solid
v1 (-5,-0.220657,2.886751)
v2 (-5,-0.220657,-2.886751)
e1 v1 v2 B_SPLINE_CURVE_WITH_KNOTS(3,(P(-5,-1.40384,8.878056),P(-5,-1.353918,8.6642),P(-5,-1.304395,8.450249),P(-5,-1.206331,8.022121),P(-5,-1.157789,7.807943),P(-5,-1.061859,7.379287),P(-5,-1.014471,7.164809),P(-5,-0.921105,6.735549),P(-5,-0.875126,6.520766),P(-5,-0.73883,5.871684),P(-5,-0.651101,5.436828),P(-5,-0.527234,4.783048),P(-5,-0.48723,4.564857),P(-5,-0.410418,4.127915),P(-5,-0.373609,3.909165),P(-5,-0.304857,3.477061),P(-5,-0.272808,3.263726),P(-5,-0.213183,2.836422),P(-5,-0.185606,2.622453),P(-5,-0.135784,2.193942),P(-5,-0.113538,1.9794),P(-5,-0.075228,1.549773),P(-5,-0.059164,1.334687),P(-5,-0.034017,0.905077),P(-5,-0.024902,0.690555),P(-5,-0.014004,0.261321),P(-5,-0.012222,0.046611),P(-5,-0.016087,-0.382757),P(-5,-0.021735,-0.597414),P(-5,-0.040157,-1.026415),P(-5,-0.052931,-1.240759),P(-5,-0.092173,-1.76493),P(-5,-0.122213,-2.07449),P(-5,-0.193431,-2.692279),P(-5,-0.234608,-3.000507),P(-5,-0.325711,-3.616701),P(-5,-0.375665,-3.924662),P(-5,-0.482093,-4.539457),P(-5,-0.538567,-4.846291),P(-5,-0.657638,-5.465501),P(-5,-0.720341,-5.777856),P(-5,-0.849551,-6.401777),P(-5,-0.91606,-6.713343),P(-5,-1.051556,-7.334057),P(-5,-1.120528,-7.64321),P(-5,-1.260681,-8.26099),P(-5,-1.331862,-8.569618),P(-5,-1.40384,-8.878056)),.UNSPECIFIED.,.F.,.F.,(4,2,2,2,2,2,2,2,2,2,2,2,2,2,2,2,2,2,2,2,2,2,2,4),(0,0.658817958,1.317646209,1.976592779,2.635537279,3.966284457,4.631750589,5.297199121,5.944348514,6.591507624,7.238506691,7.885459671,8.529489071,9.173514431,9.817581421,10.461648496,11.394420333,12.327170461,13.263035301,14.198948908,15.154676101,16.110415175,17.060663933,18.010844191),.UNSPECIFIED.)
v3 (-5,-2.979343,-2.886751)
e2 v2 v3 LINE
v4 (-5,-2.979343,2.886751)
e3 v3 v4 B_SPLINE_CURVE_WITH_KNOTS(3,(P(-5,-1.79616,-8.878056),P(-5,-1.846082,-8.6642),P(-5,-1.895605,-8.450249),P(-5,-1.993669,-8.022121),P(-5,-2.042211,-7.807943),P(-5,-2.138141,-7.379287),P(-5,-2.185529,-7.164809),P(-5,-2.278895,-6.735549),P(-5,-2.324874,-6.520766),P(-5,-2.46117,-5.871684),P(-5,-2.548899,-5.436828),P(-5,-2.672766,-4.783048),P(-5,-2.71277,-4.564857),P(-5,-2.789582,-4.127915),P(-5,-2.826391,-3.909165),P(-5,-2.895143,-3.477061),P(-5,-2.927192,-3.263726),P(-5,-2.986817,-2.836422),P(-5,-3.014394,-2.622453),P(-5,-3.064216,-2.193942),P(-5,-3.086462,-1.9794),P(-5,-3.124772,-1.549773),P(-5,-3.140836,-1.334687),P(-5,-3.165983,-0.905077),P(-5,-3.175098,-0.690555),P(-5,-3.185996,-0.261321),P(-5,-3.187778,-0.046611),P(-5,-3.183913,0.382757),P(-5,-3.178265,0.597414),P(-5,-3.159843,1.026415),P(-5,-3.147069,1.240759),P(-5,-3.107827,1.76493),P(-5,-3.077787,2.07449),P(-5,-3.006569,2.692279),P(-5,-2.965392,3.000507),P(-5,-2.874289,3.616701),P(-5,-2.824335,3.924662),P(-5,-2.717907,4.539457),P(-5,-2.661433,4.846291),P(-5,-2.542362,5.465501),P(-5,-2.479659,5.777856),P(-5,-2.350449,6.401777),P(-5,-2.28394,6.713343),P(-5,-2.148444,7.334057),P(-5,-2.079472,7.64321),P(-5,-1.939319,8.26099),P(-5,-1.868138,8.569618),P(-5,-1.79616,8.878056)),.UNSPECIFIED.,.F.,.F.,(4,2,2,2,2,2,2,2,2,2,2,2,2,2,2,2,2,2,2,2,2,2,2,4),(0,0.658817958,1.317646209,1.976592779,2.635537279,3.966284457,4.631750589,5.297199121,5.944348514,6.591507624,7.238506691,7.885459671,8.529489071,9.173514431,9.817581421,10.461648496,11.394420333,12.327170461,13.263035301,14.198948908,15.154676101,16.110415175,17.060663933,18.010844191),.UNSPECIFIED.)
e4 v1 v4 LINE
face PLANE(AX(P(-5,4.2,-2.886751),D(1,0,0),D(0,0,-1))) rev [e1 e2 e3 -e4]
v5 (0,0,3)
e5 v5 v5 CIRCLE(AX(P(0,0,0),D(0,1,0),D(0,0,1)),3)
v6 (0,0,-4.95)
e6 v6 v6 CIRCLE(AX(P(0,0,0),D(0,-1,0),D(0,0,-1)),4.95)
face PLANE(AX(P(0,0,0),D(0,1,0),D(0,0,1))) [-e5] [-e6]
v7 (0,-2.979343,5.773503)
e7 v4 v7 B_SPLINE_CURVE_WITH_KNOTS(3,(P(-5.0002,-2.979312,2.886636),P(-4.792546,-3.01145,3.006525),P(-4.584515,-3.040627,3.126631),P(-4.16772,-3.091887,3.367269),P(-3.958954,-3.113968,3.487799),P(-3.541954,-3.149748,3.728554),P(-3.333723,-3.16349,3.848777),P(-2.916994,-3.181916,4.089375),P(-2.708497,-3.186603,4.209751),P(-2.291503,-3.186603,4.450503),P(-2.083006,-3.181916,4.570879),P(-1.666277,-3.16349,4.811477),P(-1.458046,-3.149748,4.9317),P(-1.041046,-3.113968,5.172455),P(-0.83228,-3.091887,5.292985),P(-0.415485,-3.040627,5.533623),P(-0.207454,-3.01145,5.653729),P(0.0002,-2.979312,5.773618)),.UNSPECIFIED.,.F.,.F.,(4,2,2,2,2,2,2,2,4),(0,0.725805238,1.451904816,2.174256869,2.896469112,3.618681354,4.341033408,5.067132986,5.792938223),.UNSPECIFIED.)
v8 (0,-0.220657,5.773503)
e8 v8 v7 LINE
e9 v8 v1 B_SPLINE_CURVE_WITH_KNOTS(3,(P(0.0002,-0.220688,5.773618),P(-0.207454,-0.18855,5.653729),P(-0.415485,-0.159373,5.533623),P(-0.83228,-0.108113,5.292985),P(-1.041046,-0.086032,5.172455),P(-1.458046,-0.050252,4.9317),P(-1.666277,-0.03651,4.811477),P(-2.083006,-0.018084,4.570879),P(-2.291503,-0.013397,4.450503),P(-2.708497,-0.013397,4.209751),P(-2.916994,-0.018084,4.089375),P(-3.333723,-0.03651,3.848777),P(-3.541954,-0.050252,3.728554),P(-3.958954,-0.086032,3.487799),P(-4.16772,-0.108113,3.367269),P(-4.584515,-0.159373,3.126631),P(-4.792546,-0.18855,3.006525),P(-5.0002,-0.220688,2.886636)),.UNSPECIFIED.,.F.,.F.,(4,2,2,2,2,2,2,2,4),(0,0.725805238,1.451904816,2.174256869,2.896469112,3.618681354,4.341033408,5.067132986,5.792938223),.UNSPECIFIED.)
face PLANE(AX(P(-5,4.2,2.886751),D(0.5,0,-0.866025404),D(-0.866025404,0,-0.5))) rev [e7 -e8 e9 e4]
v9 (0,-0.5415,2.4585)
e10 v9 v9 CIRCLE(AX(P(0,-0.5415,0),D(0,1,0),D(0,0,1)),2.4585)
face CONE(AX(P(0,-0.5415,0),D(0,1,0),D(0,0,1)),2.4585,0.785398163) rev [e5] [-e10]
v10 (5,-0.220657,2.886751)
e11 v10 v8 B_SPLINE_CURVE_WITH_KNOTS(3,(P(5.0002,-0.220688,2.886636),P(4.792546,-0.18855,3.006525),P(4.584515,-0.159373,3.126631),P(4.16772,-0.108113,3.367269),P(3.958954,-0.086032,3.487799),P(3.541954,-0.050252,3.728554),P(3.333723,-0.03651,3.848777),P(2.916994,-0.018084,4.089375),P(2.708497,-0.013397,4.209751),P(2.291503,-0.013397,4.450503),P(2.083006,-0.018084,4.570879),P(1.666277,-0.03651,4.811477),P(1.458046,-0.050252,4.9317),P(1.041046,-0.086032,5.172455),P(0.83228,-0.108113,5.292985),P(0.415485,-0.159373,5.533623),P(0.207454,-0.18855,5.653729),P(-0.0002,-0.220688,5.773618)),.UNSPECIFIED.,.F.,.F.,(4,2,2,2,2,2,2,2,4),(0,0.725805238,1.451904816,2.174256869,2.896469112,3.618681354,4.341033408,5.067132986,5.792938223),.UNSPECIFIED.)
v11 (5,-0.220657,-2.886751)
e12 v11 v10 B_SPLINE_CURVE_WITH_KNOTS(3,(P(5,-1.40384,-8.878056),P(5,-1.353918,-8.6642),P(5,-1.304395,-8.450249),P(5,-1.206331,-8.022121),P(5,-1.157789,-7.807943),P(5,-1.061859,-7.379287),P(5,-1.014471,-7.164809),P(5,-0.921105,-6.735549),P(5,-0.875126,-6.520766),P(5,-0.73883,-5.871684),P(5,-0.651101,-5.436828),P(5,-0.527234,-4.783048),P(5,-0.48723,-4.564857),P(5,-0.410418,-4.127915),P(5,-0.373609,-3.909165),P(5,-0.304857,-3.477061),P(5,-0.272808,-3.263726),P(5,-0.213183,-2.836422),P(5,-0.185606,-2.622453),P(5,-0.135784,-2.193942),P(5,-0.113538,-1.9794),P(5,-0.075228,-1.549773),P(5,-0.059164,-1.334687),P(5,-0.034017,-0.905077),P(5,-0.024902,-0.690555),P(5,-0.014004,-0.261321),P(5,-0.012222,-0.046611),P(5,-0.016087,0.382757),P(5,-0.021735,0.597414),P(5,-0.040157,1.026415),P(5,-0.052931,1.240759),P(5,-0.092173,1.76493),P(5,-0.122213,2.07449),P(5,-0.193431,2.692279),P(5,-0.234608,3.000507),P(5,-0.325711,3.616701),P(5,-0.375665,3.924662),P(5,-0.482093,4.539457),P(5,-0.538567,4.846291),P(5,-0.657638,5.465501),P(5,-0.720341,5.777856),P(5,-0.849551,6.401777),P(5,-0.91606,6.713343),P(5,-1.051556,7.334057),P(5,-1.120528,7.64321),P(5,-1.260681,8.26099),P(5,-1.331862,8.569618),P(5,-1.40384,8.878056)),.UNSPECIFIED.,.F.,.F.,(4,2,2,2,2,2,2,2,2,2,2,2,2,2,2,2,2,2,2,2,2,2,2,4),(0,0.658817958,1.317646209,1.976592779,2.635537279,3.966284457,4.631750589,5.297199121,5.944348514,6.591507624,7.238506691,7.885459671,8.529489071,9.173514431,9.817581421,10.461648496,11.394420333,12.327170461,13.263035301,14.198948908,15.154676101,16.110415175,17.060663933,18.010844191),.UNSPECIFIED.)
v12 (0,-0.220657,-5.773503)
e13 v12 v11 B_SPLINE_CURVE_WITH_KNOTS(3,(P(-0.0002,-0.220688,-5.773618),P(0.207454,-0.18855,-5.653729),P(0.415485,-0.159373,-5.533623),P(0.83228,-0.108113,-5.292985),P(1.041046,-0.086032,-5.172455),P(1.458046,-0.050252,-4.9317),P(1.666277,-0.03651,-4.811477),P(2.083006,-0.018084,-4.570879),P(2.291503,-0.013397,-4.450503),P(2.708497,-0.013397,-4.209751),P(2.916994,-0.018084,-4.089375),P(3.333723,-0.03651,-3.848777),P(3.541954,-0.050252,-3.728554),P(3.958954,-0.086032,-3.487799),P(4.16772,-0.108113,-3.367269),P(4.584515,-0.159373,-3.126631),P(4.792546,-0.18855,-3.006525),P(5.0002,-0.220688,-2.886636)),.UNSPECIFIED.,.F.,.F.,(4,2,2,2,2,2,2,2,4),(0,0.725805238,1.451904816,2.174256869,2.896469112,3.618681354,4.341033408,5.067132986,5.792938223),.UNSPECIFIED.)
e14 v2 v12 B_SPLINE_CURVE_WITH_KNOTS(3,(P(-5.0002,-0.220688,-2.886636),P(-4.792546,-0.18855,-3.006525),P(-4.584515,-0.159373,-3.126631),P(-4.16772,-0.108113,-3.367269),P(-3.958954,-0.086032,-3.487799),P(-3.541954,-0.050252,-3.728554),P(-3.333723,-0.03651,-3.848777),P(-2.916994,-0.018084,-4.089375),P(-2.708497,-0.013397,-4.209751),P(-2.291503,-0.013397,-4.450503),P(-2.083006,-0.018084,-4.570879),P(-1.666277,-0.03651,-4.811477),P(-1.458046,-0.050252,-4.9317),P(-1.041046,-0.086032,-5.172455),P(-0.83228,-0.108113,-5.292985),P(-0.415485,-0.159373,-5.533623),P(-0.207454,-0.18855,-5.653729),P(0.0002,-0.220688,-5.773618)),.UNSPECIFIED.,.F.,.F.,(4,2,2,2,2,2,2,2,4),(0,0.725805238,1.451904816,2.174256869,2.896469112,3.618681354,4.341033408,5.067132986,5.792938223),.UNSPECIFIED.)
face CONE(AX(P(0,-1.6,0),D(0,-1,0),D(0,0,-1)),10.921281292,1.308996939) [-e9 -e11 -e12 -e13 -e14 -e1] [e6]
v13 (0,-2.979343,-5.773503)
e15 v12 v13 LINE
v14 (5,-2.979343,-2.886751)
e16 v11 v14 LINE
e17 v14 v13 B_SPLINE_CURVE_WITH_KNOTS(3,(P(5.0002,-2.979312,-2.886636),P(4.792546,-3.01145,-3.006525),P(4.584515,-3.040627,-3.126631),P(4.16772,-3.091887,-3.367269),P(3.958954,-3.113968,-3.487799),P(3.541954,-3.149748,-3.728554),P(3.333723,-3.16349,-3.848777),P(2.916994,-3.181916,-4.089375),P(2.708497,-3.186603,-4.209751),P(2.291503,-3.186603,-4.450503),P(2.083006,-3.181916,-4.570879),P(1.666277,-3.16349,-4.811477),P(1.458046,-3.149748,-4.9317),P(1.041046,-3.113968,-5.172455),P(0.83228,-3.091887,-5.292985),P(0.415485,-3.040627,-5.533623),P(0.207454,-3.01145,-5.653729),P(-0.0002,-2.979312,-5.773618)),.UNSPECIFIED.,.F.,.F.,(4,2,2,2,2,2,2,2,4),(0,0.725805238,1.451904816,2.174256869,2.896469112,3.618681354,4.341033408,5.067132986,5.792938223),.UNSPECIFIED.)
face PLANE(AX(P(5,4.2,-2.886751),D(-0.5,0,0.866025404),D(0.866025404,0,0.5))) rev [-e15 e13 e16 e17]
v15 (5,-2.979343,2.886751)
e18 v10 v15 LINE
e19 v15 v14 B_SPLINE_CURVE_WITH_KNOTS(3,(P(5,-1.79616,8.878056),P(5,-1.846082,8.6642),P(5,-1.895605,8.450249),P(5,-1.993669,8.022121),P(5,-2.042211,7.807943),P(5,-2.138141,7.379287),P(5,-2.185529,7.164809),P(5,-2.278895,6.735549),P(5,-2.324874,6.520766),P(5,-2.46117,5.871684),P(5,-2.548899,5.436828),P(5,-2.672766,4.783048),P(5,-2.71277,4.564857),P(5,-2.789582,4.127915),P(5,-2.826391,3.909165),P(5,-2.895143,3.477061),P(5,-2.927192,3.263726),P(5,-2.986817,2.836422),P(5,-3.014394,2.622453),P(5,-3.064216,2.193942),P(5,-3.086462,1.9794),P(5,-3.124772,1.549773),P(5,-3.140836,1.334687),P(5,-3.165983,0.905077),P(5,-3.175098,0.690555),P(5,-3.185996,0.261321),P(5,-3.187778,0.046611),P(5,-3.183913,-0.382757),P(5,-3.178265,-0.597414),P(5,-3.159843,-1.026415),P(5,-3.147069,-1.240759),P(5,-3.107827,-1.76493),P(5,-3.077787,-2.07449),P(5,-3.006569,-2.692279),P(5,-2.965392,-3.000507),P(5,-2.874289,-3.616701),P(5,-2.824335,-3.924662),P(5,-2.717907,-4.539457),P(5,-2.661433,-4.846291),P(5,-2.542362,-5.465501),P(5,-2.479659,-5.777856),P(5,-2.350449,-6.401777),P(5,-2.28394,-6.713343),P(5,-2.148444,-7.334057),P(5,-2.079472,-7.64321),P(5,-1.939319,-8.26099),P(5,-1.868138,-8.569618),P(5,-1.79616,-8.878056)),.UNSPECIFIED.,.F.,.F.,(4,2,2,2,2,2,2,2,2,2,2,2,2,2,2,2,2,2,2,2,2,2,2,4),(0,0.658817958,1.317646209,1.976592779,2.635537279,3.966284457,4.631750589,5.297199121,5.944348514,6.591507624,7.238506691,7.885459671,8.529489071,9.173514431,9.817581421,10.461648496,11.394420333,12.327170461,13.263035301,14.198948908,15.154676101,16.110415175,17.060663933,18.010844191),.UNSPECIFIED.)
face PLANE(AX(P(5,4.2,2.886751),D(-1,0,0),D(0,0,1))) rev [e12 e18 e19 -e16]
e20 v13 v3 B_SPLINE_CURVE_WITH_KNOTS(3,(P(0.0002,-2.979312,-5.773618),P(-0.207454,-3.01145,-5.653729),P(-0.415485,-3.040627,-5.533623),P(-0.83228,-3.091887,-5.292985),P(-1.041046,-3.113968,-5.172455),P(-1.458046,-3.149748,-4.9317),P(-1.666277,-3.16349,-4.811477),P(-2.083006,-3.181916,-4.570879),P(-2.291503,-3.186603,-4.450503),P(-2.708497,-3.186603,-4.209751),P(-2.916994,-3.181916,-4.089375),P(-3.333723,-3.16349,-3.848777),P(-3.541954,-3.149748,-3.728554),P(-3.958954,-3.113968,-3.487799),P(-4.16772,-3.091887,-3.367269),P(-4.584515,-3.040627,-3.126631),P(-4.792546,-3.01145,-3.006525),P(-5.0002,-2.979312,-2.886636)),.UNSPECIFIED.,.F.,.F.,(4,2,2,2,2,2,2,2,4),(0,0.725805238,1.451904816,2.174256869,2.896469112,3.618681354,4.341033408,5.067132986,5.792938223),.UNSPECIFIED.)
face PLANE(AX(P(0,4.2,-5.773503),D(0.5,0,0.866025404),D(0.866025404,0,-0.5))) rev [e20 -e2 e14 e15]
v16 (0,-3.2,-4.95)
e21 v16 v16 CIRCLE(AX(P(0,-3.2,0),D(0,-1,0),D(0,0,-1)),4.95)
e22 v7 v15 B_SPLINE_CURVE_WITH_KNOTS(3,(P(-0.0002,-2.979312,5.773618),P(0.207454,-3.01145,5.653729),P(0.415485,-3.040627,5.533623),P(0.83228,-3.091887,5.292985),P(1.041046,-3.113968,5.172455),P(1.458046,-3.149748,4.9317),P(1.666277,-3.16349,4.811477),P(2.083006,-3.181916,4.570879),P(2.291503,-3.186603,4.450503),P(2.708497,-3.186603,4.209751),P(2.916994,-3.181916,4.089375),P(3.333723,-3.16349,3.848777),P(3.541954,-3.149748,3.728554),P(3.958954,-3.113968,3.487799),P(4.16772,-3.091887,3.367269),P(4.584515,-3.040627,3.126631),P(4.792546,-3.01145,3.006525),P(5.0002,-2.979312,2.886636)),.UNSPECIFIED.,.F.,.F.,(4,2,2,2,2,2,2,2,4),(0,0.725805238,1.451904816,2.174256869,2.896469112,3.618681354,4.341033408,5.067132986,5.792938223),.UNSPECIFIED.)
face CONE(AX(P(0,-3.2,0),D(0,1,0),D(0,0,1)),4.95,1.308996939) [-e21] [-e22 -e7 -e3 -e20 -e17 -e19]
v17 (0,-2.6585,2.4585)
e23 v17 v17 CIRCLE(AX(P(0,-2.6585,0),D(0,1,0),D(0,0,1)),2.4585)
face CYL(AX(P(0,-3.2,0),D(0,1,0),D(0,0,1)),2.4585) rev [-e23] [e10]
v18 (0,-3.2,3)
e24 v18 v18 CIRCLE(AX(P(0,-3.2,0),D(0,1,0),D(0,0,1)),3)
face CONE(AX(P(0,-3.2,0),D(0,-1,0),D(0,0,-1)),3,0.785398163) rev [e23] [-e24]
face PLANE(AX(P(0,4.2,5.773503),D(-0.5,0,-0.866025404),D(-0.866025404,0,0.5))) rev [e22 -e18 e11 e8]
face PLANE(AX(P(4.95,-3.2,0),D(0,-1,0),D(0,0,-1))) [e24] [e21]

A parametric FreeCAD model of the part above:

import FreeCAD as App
import Part
import Sketcher
Q = App.Units.Quantity

doc = App.newDocument("Part")
params = doc.addObject("Spreadsheet::Sheet", "Params")
for row, (alias, value) in enumerate([
    ("sketch1_height", "3.2 mm"),
    ("sketch1_width", "4.95 mm"),
    ("revolution_angle", "360 deg"),
    ("sketch2_width", "40 mm"),
    ("sketch3_width", "3 mm"),
    ("sketch3_height", "3.2 mm"),
    ("groove_angle", "360 deg"),
], start=1):
    params.set(f"A{row}", alias)
    params.set(f"B{row}", "=" + value)
    params.setAlias(f"B{row}", alias)

body = doc.addObject("PartDesign::Body", "Body")

# Sketch on XY plane
sketch1 = body.newObject("Sketcher::SketchObject", "Sketch")
sketch1.AttachmentSupport = (doc.getObject("XY_Plane"), [""])
sketch1.MapMode = "FlatFace"
sketch1.addGeometry([
    Part.LineSegment(App.Vector(5, 0, 0), App.Vector(0, 0, 0)),  # 0
    Part.LineSegment(App.Vector(0, 0, 0), App.Vector(0, -3.2, 0)),  # 1
    Part.LineSegment(App.Vector(0, -3.2, 0), App.Vector(5, -3.2, 0)),  # 2
    Part.LineSegment(App.Vector(5, -3.2, 0), App.Vector(10.9, -1.6, 0)),  # 3
    Part.LineSegment(App.Vector(10.9, -1.6, 0), App.Vector(5, 0, 0)),  # 4
], False)
sketch1.addConstraint([
    Sketcher.Constraint("Coincident", 0, 2, 1, 1),
    Sketcher.Constraint("Coincident", 1, 2, 2, 1),
    Sketcher.Constraint("Coincident", 2, 2, 3, 1),
    Sketcher.Constraint("Coincident", 3, 2, 4, 1),
    Sketcher.Constraint("Coincident", 4, 2, 0, 1),
    Sketcher.Constraint("Horizontal", 0),
    Sketcher.Constraint("Vertical", 1),
    Sketcher.Constraint("Horizontal", 2),
    Sketcher.Constraint("Coincident", 0, 2, -1, 1),
    Sketcher.Constraint("Vertical", 2, 2, 4, 2),
    Sketcher.Constraint("Equal", 3, 4),
    Sketcher.Constraint("Angle", 3, Q("15 deg")),
    Sketcher.Constraint("DistanceY", 1, 2, 1, 1, Q("3.2 mm")),
    Sketcher.Constraint("DistanceX", 0, 2, 0, 1, Q("4.95 mm")),
])
sketch1.setExpression("Constraints[12]", "Params.sketch1_height")
sketch1.setExpression("Constraints[13]", "Params.sketch1_width")
revolution = body.newObject("PartDesign::Revolution", "Revolution")
revolution.Profile = sketch1
revolution.ReferenceAxis = (sketch1, ["V_Axis"])
revolution.setExpression("Angle", "Params.revolution_angle")

# Sketch on XZ plane
sketch2 = body.newObject("Sketcher::SketchObject", "Sketch001")
sketch2.AttachmentSupport = (doc.getObject("XZ_Plane"), [""])
sketch2.MapMode = "FlatFace"
sketch2.addGeometry([
    Part.LineSegment(App.Vector(-20, -20, 0), App.Vector(-20, 20, 0)),  # 0
    Part.LineSegment(App.Vector(-20, 20, 0), App.Vector(20, 20, 0)),  # 1
    Part.LineSegment(App.Vector(20, 20, 0), App.Vector(20, -20, 0)),  # 2
    Part.LineSegment(App.Vector(20, -20, 0), App.Vector(-20, -20, 0)),  # 3
    Part.LineSegment(App.Vector(0, 6, 0), App.Vector(-5, 3, 0)),  # 4
    Part.LineSegment(App.Vector(-5, 3, 0), App.Vector(-5, -3, 0)),  # 5
    Part.LineSegment(App.Vector(-5, -3, 0), App.Vector(0, -6, 0)),  # 6
    Part.LineSegment(App.Vector(0, -6, 0), App.Vector(5, -3, 0)),  # 7
    Part.LineSegment(App.Vector(5, -3, 0), App.Vector(5, 3, 0)),  # 8
    Part.LineSegment(App.Vector(5, 3, 0), App.Vector(0, 6, 0)),  # 9
], False)
sketch2.addConstraint([
    Sketcher.Constraint("Coincident", 0, 2, 1, 1),
    Sketcher.Constraint("Coincident", 1, 2, 2, 1),
    Sketcher.Constraint("Coincident", 2, 2, 3, 1),
    Sketcher.Constraint("Coincident", 3, 2, 0, 1),
    Sketcher.Constraint("Coincident", 4, 2, 5, 1),
    Sketcher.Constraint("Coincident", 5, 2, 6, 1),
    Sketcher.Constraint("Coincident", 6, 2, 7, 1),
    Sketcher.Constraint("Coincident", 7, 2, 8, 1),
    Sketcher.Constraint("Coincident", 8, 2, 9, 1),
    Sketcher.Constraint("Coincident", 9, 2, 4, 1),
    Sketcher.Constraint("Vertical", 0),
    Sketcher.Constraint("Horizontal", 1),
    Sketcher.Constraint("Vertical", 2),
    Sketcher.Constraint("Horizontal", 3),
    Sketcher.Constraint("Vertical", 5),
    Sketcher.Constraint("Vertical", 8),
    Sketcher.Constraint("Symmetric", 0, 2, 2, 2, -1, 1),
    Sketcher.Constraint("Symmetric", 4, 2, 7, 2, -1, 1),
    Sketcher.Constraint("Symmetric", 6, 2, 9, 2, -1, 1),
    Sketcher.Constraint("PointOnObject", 6, 2, -2),
    Sketcher.Constraint("Parallel", 6, 9),
    Sketcher.Constraint("Horizontal", 5, 2, 7, 2),
    Sketcher.Constraint("Equal", 3, 0),
    Sketcher.Constraint("DistanceX", 1, 1, 1, 2, Q("40 mm")),
    Sketcher.Constraint("Angle", 4, Q("-150 deg")),
    Sketcher.Constraint("DistanceX", 4, 2, -1, 1, Q("5 mm")),
    Sketcher.Constraint("DistanceY", 5, 2, 5, 1, Q("5.773503 mm")),
])
sketch2.setExpression("Constraints[23]", "Params.sketch2_width")
pocket1 = body.newObject("PartDesign::Pocket", "Pocket")
pocket1.Profile = sketch2
pocket1.Type = "ThroughAll"
pocket1.Midplane = True

# Sketch on XY plane
sketch3 = body.newObject("Sketcher::SketchObject", "Sketch002")
sketch3.AttachmentSupport = (doc.getObject("XY_Plane"), [""])
sketch3.MapMode = "FlatFace"
sketch3.addGeometry([
    Part.LineSegment(App.Vector(3, 0, 0), App.Vector(0, 0, 0)),  # 0
    Part.LineSegment(App.Vector(0, 0, 0), App.Vector(0, -3.2, 0)),  # 1
    Part.LineSegment(App.Vector(0, -3.2, 0), App.Vector(3, -3.2, 0)),  # 2
    Part.LineSegment(App.Vector(3, -3.2, 0), App.Vector(2.5, -2.7, 0)),  # 3
    Part.LineSegment(App.Vector(2.5, -2.7, 0), App.Vector(2.5, -0.5, 0)),  # 4
    Part.LineSegment(App.Vector(2.5, -0.5, 0), App.Vector(3, 0, 0)),  # 5
], False)
sketch3.addConstraint([
    Sketcher.Constraint("Coincident", 0, 2, 1, 1),
    Sketcher.Constraint("Coincident", 1, 2, 2, 1),
    Sketcher.Constraint("Coincident", 2, 2, 3, 1),
    Sketcher.Constraint("Coincident", 3, 2, 4, 1),
    Sketcher.Constraint("Coincident", 4, 2, 5, 1),
    Sketcher.Constraint("Coincident", 5, 2, 0, 1),
    Sketcher.Constraint("Horizontal", 0),
    Sketcher.Constraint("Vertical", 1),
    Sketcher.Constraint("Horizontal", 2),
    Sketcher.Constraint("Vertical", 4),
    Sketcher.Constraint("Coincident", 0, 2, -1, 1),
    Sketcher.Constraint("Perpendicular", 3, 5),
    Sketcher.Constraint("Vertical", 2, 2, 5, 2),
    Sketcher.Constraint("Equal", 3, 5),
    Sketcher.Constraint("DistanceX", 0, 2, 0, 1, Q("3 mm")),
    Sketcher.Constraint("DistanceY", 1, 2, 1, 1, Q("3.2 mm")),
    Sketcher.Constraint("DistanceY", 4, 1, 4, 2, Q("2.117 mm")),
])
sketch3.setExpression("Constraints[14]", "Params.sketch3_width")
sketch3.setExpression("Constraints[15]", "Params.sketch3_height")
groove = body.newObject("PartDesign::Groove", "Groove")
groove.Profile = sketch3
groove.ReferenceAxis = (sketch3, ["V_Axis"])
groove.setExpression("Angle", "Params.groove_angle")

doc.recompute()
